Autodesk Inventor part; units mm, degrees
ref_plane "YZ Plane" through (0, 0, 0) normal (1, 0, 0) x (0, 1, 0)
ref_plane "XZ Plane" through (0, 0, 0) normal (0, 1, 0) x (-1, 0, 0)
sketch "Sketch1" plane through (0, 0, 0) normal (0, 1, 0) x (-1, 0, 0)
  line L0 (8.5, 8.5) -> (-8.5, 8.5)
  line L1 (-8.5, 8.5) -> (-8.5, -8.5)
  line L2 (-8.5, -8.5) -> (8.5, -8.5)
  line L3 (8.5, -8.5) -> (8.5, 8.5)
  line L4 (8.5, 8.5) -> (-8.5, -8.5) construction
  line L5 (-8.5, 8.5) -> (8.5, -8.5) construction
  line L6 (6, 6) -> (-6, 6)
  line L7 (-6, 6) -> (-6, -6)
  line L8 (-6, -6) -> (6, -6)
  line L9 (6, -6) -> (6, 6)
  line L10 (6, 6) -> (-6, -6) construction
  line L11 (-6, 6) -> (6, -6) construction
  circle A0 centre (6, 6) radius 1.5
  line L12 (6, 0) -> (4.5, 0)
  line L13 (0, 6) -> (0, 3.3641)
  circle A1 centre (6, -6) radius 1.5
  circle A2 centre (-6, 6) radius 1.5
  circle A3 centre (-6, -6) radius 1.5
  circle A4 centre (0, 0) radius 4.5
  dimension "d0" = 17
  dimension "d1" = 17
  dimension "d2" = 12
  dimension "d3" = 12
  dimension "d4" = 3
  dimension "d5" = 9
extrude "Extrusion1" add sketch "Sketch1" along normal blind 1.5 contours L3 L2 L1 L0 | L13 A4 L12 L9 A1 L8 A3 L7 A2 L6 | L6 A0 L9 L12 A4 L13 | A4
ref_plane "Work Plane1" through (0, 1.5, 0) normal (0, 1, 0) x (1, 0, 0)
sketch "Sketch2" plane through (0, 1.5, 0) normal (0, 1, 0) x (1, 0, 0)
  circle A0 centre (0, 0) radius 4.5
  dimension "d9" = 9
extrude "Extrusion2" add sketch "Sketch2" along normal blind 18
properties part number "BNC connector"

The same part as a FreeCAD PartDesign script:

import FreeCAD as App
import Part
import Sketcher
Q = App.Units.Quantity


def add_polygon(sketch, points):
    """Adds a closed chain of lines whose ends are joined by coincident constraints."""
    first, n = sketch.GeometryCount, len(points)
    for a, b in zip(points, points[1:] + points[:1]):
        sketch.addGeometry(Part.LineSegment(App.Vector(*a, 0), App.Vector(*b, 0)), False)
    for i in range(n):
        sketch.addConstraint(Sketcher.Constraint("Coincident", first + i, 2, first + (i + 1) % n, 1))

doc = App.newDocument("Part")
body = doc.addObject("PartDesign::Body", "Body")

# Sketch on XZ plane
sketch1 = body.newObject("Sketcher::SketchObject", "Sketch")
sketch1.AttachmentSupport = (doc.getObject("XZ_Plane"), [""])
sketch1.MapMode = "FlatFace"
add_polygon(sketch1, [(-8.5, -8.5), (-8.5, 8.5), (8.5, 8.5), (8.5, -8.5)])  # lines 0-3
sketch1.addGeometry(Part.Circle(App.Vector(6, 6, 0), App.Vector(0, 0, 1), 1.5), False)  # 4
sketch1.addGeometry(Part.Circle(App.Vector(6, -6, 0), App.Vector(0, 0, 1), 1.5), False)  # 5
sketch1.addGeometry(Part.Circle(App.Vector(-6, -6, 0), App.Vector(0, 0, 1), 1.5), False)  # 6
sketch1.addGeometry(Part.Circle(App.Vector(-6, 6, 0), App.Vector(0, 0, 1), 1.5), False)  # 7
sketch1.addConstraint(Sketcher.Constraint("Vertical", 0))
sketch1.addConstraint(Sketcher.Constraint("Horizontal", 1))
sketch1.addConstraint(Sketcher.Constraint("Vertical", 2))
sketch1.addConstraint(Sketcher.Constraint("Horizontal", 3))
sketch1.addConstraint(Sketcher.Constraint("Equal", 4, 5))
sketch1.addConstraint(Sketcher.Constraint("Equal", 5, 6))
sketch1.addConstraint(Sketcher.Constraint("Equal", 6, 7))
sketch1.addConstraint(Sketcher.Constraint("Symmetric", 4, 3, 6, 3, -1, 1))
sketch1.addConstraint(Sketcher.Constraint("Symmetric", 5, 3, 7, 3, -1, 1))
sketch1.addConstraint(Sketcher.Constraint("Symmetric", 0, 2, 2, 2, -1, 1))
sketch1.addConstraint(Sketcher.Constraint("Symmetric", 5, 3, 6, 3, -2))
sketch1.addConstraint(Sketcher.Constraint("Equal", 3, 0))
sketch1.addConstraint(Sketcher.Constraint("Diameter", 4, Q("3 mm")))
sketch1.addConstraint(Sketcher.Constraint("DistanceX", 1, 1, 1, 2, Q("17 mm")))
sketch1.addConstraint(Sketcher.Constraint("DistanceY", 5, 3, 4, 3, Q("12 mm")))
sketch1.addConstraint(Sketcher.Constraint("DistanceX", 6, 3, 5, 3, Q("12 mm")))
pad1 = body.newObject("PartDesign::Pad", "Pad")
pad1.Profile = sketch1
pad1.Length = 1.5
pad1.Reversed = True

# Sketch on XZ plane
sketch2 = body.newObject("Sketcher::SketchObject", "Sketch001")
sketch2.AttachmentSupport = (doc.getObject("XZ_Plane"), [""])
sketch2.MapMode = "FlatFace"
sketch2.AttachmentOffset = App.Placement(App.Vector(0, 0, -1.5), App.Rotation())
sketch2.addGeometry(Part.Circle(App.Vector(0, 0, 0), App.Vector(0, 0, 1), 4.5), False)
sketch2.addConstraint(Sketcher.Constraint("Coincident", 0, 3, -1, 1))
sketch2.addConstraint(Sketcher.Constraint("Diameter", 0, Q("9 mm")))
pad2 = body.newObject("PartDesign::Pad", "Pad001")
pad2.Profile = sketch2
pad2.Length = 18
pad2.Reversed = True

doc.recompute()
